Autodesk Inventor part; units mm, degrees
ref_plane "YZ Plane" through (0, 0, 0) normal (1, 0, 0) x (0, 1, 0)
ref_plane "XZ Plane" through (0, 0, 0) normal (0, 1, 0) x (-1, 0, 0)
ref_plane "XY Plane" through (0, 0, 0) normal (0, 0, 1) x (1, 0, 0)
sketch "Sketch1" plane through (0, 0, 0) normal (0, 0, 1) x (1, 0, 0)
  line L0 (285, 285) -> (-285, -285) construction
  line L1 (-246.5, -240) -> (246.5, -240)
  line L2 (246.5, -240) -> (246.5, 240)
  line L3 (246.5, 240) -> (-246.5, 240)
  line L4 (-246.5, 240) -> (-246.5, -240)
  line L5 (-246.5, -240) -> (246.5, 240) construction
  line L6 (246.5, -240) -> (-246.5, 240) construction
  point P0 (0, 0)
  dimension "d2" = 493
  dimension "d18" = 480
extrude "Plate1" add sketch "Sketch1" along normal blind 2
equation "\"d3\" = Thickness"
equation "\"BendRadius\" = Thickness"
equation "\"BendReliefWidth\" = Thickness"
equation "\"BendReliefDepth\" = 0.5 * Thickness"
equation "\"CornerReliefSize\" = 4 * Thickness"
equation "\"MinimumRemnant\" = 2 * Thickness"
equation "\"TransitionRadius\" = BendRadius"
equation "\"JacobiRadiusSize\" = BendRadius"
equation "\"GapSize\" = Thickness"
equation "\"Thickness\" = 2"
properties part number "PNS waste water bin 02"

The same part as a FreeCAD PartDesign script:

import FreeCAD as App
import Part
import Sketcher
from FreeCAD import Vector
Q = App.Units.Quantity


def add_polygon(sketch, points):
    """Adds a closed chain of lines whose ends are joined by coincident constraints."""
    first, n = sketch.GeometryCount, len(points)
    for a, b in zip(points, points[1:] + points[:1]):
        sketch.addGeometry(Part.LineSegment(App.Vector(*a, 0), App.Vector(*b, 0)), False)
    for i in range(n):
        sketch.addConstraint(Sketcher.Constraint("Coincident", first + i, 2, first + (i + 1) % n, 1))

doc = App.newDocument("Part")
params = doc.addObject("Spreadsheet::Sheet", "Params")
for row, (alias, value) in enumerate([
    ("sketch1_width", "493 mm"),
    ("sketch1_height", "480 mm"),
    ("pad1_length", "2 mm"),
], start=1):
    params.set(f"A{row}", alias)
    params.set(f"B{row}", "=" + value)
    params.setAlias(f"B{row}", alias)

body = doc.addObject("PartDesign::Body", "Body")

# Sketch on XY plane
sketch1 = body.newObject("Sketcher::SketchObject", "Sketch")
sketch1.AttachmentSupport = (doc.getObject("XY_Plane"), [""])
sketch1.MapMode = "FlatFace"
add_polygon(sketch1, [(-246.5, 240), (-246.5, -240), (246.5, -240), (246.5, 240)])  # lines 0-3
sketch1.addConstraint(Sketcher.Constraint("Vertical", 0))
sketch1.addConstraint(Sketcher.Constraint("Horizontal", 1))
sketch1.addConstraint(Sketcher.Constraint("Vertical", 2))
sketch1.addConstraint(Sketcher.Constraint("Horizontal", 3))
sketch1.addConstraint(Sketcher.Constraint("Symmetric", 0, 2, 2, 2, -1, 1))
sketch1.addConstraint(Sketcher.Constraint("DistanceX", 1, 1, 1, 2, Q("493 mm")))
sketch1.addConstraint(Sketcher.Constraint("DistanceY", 0, 2, 0, 1, Q("480 mm")))
sketch1.setExpression("Constraints[9]", "Params.sketch1_width")
sketch1.setExpression("Constraints[10]", "Params.sketch1_height")
pad1 = body.newObject("PartDesign::Pad", "Pad")
pad1.Profile = sketch1
pad1.setExpression("Length", "Params.pad1_length")

doc.recompute()
